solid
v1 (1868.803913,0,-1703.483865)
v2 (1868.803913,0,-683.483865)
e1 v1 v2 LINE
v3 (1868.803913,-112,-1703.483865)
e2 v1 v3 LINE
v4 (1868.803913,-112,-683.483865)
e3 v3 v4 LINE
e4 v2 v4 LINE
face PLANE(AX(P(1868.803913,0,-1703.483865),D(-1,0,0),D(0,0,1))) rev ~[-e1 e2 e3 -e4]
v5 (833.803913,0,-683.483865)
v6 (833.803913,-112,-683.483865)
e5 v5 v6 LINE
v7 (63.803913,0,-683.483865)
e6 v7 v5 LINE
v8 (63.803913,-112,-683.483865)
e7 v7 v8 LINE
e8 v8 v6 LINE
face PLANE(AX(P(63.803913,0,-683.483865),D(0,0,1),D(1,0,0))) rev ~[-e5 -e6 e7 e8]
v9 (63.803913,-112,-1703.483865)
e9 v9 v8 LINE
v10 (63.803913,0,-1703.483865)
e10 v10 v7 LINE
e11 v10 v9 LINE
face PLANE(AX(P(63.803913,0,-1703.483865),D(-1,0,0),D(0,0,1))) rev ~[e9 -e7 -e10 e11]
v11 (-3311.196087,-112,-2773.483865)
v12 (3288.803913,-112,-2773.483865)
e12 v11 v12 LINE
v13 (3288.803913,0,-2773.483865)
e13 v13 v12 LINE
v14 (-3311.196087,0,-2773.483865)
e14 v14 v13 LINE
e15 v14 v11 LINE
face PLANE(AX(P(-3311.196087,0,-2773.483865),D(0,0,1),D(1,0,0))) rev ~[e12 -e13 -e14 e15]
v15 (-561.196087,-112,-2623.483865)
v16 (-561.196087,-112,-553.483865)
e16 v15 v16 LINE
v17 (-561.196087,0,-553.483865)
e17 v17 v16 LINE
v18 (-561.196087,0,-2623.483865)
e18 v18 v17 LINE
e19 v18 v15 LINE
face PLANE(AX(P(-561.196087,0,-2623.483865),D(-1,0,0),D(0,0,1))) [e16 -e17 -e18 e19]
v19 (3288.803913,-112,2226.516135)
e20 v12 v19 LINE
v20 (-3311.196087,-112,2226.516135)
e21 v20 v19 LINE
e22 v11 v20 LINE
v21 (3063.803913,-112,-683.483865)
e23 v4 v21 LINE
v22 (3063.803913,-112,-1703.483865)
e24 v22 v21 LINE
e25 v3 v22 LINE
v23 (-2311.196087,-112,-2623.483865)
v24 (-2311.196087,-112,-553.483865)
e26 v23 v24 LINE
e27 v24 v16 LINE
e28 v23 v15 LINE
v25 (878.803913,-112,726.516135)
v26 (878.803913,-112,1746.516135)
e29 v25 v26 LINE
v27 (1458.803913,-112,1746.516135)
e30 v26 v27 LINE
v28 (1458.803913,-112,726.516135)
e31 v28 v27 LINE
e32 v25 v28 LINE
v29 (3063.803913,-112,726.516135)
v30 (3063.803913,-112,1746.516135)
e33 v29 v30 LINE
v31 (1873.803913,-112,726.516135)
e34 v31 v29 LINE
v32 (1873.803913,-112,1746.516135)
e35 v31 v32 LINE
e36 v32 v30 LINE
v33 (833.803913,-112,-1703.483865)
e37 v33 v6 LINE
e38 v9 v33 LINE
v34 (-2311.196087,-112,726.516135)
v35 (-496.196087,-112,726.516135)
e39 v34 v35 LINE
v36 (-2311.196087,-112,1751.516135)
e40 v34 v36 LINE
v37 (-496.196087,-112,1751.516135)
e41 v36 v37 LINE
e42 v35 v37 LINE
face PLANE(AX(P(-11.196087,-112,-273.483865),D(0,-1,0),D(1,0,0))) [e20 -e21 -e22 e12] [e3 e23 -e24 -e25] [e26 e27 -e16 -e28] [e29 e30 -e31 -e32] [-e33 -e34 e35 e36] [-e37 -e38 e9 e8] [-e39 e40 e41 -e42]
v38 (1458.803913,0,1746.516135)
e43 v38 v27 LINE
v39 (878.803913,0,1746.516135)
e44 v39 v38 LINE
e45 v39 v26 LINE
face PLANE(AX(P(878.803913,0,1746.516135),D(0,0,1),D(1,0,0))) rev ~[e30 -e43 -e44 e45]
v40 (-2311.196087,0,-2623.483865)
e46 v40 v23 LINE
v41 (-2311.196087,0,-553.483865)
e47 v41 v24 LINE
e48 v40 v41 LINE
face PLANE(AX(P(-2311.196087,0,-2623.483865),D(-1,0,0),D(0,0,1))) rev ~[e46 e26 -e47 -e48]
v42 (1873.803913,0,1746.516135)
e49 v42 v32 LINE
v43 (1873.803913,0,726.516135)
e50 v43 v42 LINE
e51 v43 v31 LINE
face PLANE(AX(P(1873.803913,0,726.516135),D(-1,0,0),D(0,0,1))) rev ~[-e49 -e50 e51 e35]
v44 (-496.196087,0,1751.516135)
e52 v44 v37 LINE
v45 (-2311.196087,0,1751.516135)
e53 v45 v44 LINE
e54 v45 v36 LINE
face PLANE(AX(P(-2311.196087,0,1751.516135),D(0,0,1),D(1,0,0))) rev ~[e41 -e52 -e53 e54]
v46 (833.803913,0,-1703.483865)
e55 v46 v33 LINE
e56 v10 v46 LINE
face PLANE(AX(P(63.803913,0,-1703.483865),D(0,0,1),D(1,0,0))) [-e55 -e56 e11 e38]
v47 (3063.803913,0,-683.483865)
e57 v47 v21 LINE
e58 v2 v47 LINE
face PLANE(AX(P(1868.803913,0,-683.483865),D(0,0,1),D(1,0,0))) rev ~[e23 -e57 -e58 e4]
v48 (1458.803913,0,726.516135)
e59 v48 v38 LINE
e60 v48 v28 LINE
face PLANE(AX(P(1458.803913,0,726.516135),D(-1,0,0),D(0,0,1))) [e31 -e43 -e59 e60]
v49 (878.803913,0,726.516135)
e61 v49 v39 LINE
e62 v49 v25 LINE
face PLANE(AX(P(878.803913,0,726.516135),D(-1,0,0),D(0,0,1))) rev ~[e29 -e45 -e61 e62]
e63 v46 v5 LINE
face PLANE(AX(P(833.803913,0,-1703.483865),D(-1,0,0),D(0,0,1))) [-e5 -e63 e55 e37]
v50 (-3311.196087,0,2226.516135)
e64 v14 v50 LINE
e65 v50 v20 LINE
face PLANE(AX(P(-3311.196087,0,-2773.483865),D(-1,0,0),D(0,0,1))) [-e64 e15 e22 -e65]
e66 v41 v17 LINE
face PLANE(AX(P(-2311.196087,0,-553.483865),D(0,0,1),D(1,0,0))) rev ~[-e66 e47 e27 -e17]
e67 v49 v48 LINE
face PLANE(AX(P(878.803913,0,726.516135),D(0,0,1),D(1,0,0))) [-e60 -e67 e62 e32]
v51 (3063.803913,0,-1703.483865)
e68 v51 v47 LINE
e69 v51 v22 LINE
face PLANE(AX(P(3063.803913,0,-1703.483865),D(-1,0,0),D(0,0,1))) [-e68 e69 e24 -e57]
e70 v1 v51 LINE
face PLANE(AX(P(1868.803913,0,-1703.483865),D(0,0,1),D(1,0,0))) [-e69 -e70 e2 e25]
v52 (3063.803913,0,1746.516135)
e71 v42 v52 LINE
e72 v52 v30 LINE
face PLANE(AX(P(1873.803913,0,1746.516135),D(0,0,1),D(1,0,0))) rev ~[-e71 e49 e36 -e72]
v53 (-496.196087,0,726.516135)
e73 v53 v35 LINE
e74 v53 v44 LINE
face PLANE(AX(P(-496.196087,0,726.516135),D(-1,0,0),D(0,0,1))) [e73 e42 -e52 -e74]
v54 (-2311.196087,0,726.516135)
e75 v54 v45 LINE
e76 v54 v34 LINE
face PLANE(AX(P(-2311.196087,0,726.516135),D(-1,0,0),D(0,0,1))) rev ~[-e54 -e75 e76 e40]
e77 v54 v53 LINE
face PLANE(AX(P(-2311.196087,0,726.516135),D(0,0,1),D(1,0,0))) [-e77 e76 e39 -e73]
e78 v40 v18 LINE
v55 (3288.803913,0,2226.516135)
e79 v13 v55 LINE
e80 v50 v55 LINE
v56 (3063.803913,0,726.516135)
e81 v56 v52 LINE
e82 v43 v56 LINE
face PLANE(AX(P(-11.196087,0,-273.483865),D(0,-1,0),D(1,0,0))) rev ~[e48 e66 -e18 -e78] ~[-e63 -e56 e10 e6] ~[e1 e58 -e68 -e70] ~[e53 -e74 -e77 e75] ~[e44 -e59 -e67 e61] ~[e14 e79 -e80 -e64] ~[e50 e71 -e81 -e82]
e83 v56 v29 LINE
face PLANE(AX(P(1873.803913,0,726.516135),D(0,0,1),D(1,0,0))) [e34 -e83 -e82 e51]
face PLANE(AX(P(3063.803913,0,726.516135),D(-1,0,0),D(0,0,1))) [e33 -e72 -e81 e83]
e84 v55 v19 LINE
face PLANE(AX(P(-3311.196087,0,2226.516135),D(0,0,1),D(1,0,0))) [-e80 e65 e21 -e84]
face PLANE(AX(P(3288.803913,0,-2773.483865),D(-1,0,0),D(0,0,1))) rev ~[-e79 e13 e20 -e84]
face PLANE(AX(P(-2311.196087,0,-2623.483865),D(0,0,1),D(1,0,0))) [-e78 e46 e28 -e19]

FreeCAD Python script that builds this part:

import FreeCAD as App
import Part
import Sketcher
Q = App.Units.Quantity

doc = App.newDocument("Part")
body = doc.addObject("PartDesign::Body", "Body")

# Sketch on XZ plane
sketch1 = body.newObject("Sketcher::SketchObject", "Sketch")
sketch1.AttachmentSupport = (doc.getObject("XZ_Plane"), [""])
sketch1.MapMode = "FlatFace"
sketch1.addGeometry([
    Part.LineSegment(App.Vector(-3311, 2227, 0), App.Vector(-3311, -2773, 0)),  # 0
    Part.LineSegment(App.Vector(-3311, -2773, 0), App.Vector(3289, -2773, 0)),  # 1
    Part.LineSegment(App.Vector(3289, -2773, 0), App.Vector(3289, 2227, 0)),  # 2
    Part.LineSegment(App.Vector(3289, 2227, 0), App.Vector(-3311, 2227, 0)),  # 3
    Part.LineSegment(App.Vector(-561, -2623, 0), App.Vector(-2311, -2623, 0)),  # 4
    Part.LineSegment(App.Vector(-2311, -2623, 0), App.Vector(-2311, -553, 0)),  # 5
    Part.LineSegment(App.Vector(-2311, -553, 0), App.Vector(-561, -553, 0)),  # 6
    Part.LineSegment(App.Vector(-561, -553, 0), App.Vector(-561, -2623, 0)),  # 7
    Part.LineSegment(App.Vector(834, -1703, 0), App.Vector(64, -1703, 0)),  # 8
    Part.LineSegment(App.Vector(64, -1703, 0), App.Vector(64, -683, 0)),  # 9
    Part.LineSegment(App.Vector(64, -683, 0), App.Vector(834, -683, 0)),  # 10
    Part.LineSegment(App.Vector(834, -683, 0), App.Vector(834, -1703, 0)),  # 11
    Part.LineSegment(App.Vector(3064, -1703, 0), App.Vector(1869, -1703, 0)),  # 12
    Part.LineSegment(App.Vector(1869, -1703, 0), App.Vector(1869, -683, 0)),  # 13
    Part.LineSegment(App.Vector(1869, -683, 0), App.Vector(3064, -683, 0)),  # 14
    Part.LineSegment(App.Vector(3064, -683, 0), App.Vector(3064, -1703, 0)),  # 15
    Part.LineSegment(App.Vector(-496, 727, 0), App.Vector(-2311, 727, 0)),  # 16
    Part.LineSegment(App.Vector(-2311, 727, 0), App.Vector(-2311, 1752, 0)),  # 17
    Part.LineSegment(App.Vector(-2311, 1752, 0), App.Vector(-496, 1752, 0)),  # 18
    Part.LineSegment(App.Vector(-496, 1752, 0), App.Vector(-496, 727, 0)),  # 19
    Part.LineSegment(App.Vector(1459, 727, 0), App.Vector(879, 727, 0)),  # 20
    Part.LineSegment(App.Vector(879, 727, 0), App.Vector(879, 1747, 0)),  # 21
    Part.LineSegment(App.Vector(879, 1747, 0), App.Vector(1459, 1747, 0)),  # 22
    Part.LineSegment(App.Vector(1459, 1747, 0), App.Vector(1459, 727, 0)),  # 23
    Part.LineSegment(App.Vector(3064, 727, 0), App.Vector(1874, 727, 0)),  # 24
    Part.LineSegment(App.Vector(1874, 727, 0), App.Vector(1874, 1747, 0)),  # 25
    Part.LineSegment(App.Vector(1874, 1747, 0), App.Vector(3064, 1747, 0)),  # 26
    Part.LineSegment(App.Vector(3064, 1747, 0), App.Vector(3064, 727, 0)),  # 27
], False)
sketch1.addConstraint([
    Sketcher.Constraint("Coincident", 0, 2, 1, 1),
    Sketcher.Constraint("Coincident", 1, 2, 2, 1),
    Sketcher.Constraint("Coincident", 2, 2, 3, 1),
    Sketcher.Constraint("Coincident", 3, 2, 0, 1),
    Sketcher.Constraint("Coincident", 4, 2, 5, 1),
    Sketcher.Constraint("Coincident", 5, 2, 6, 1),
    Sketcher.Constraint("Coincident", 6, 2, 7, 1),
    Sketcher.Constraint("Coincident", 7, 2, 4, 1),
    Sketcher.Constraint("Coincident", 8, 2, 9, 1),
    Sketcher.Constraint("Coincident", 9, 2, 10, 1),
    Sketcher.Constraint("Coincident", 10, 2, 11, 1),
    Sketcher.Constraint("Coincident", 11, 2, 8, 1),
    Sketcher.Constraint("Coincident", 12, 2, 13, 1),
    Sketcher.Constraint("Coincident", 13, 2, 14, 1),
    Sketcher.Constraint("Coincident", 14, 2, 15, 1),
    Sketcher.Constraint("Coincident", 15, 2, 12, 1),
    Sketcher.Constraint("Coincident", 16, 2, 17, 1),
    Sketcher.Constraint("Coincident", 17, 2, 18, 1),
    Sketcher.Constraint("Coincident", 18, 2, 19, 1),
    Sketcher.Constraint("Coincident", 19, 2, 16, 1),
    Sketcher.Constraint("Coincident", 20, 2, 21, 1),
    Sketcher.Constraint("Coincident", 21, 2, 22, 1),
    Sketcher.Constraint("Coincident", 22, 2, 23, 1),
    Sketcher.Constraint("Coincident", 23, 2, 20, 1),
    Sketcher.Constraint("Coincident", 24, 2, 25, 1),
    Sketcher.Constraint("Coincident", 25, 2, 26, 1),
    Sketcher.Constraint("Coincident", 26, 2, 27, 1),
    Sketcher.Constraint("Coincident", 27, 2, 24, 1),
    Sketcher.Constraint("Vertical", 0),
    Sketcher.Constraint("Horizontal", 1),
    Sketcher.Constraint("Vertical", 2),
    Sketcher.Constraint("Horizontal", 3),
    Sketcher.Constraint("Horizontal", 4),
    Sketcher.Constraint("Vertical", 5),
    Sketcher.Constraint("Horizontal", 6),
    Sketcher.Constraint("Vertical", 7),
    Sketcher.Constraint("Horizontal", 8),
    Sketcher.Constraint("Vertical", 9),
    Sketcher.Constraint("Horizontal", 10),
    Sketcher.Constraint("Vertical", 11),
    Sketcher.Constraint("Horizontal", 12),
    Sketcher.Constraint("Vertical", 13),
    Sketcher.Constraint("Horizontal", 14),
    Sketcher.Constraint("Vertical", 15),
    Sketcher.Constraint("Horizontal", 16),
    Sketcher.Constraint("Vertical", 17),
    Sketcher.Constraint("Horizontal", 18),
    Sketcher.Constraint("Vertical", 19),
    Sketcher.Constraint("Horizontal", 20),
    Sketcher.Constraint("Vertical", 21),
    Sketcher.Constraint("Horizontal", 22),
    Sketcher.Constraint("Vertical", 23),
    Sketcher.Constraint("Horizontal", 24),
    Sketcher.Constraint("Vertical", 25),
    Sketcher.Constraint("Horizontal", 26),
    Sketcher.Constraint("Vertical", 27),
    Sketcher.Constraint("Horizontal", 11, 2, 12, 2),
    Sketcher.Constraint("Horizontal", 10, 2, 13, 2),
    Sketcher.Constraint("Horizontal", 19, 2, 20, 2),
    Sketcher.Constraint("Horizontal", 23, 2, 24, 2),
    Sketcher.Constraint("Horizontal", 22, 2, 25, 2),
    Sketcher.Constraint("Vertical", 5, 2, 16, 2),
    Sketcher.Constraint("Vertical", 15, 2, 26, 2),
    Sketcher.Constraint("Equal", 15, 21),
    Sketcher.Constraint("DistanceX", 1, 1, 1, 2, Q("6600 mm")),
    Sketcher.Constraint("DistanceX", 4, 2, 4, 1, Q("1750 mm")),
    Sketcher.Constraint("DistanceX", 8, 2, 8, 1, Q("770 mm")),
    Sketcher.Constraint("DistanceX", 12, 2, 12, 1, Q("1195 mm")),
    Sketcher.Constraint("DistanceX", 16, 2, 16, 1, Q("1815 mm")),
    Sketcher.Constraint("DistanceX", 20, 2, 20, 1, Q("580 mm")),
    Sketcher.Constraint("DistanceX", 24, 2, 24, 1, Q("1190 mm")),
    Sketcher.Constraint("DistanceY", 0, 2, 0, 1, Q("5000 mm")),
    Sketcher.Constraint("DistanceY", 5, 1, 5, 2, Q("2070 mm")),
    Sketcher.Constraint("DistanceY", 9, 1, 9, 2, Q("1020 mm")),
    Sketcher.Constraint("DistanceY", 17, 1, 17, 2, Q("1025 mm")),
    Sketcher.Constraint("DistanceX", 0, 2, 4, 2, Q("1000 mm")),
    Sketcher.Constraint("DistanceY", 0, 2, 4, 2, Q("150 mm")),
    Sketcher.Constraint("DistanceX", 7, 2, 8, 2, Q("625 mm")),
    Sketcher.Constraint("DistanceY", 7, 2, 8, 2, Q("920 mm")),
    Sketcher.Constraint("DistanceX", 11, 2, 12, 2, Q("1035 mm")),
    Sketcher.Constraint("DistanceY", 5, 2, 16, 2, Q("1280 mm")),
    Sketcher.Constraint("DistanceX", 19, 2, 20, 2, Q("1375 mm")),
    Sketcher.Constraint("DistanceX", 0, 2, -1, 1, Q("3311.196087 mm")),
    Sketcher.Constraint("DistanceY", 0, 2, -1, 1, Q("2773.483865 mm")),
])
pad1 = body.newObject("PartDesign::Pad", "Pad")
pad1.Profile = sketch1
pad1.Length = 112

doc.recompute()
